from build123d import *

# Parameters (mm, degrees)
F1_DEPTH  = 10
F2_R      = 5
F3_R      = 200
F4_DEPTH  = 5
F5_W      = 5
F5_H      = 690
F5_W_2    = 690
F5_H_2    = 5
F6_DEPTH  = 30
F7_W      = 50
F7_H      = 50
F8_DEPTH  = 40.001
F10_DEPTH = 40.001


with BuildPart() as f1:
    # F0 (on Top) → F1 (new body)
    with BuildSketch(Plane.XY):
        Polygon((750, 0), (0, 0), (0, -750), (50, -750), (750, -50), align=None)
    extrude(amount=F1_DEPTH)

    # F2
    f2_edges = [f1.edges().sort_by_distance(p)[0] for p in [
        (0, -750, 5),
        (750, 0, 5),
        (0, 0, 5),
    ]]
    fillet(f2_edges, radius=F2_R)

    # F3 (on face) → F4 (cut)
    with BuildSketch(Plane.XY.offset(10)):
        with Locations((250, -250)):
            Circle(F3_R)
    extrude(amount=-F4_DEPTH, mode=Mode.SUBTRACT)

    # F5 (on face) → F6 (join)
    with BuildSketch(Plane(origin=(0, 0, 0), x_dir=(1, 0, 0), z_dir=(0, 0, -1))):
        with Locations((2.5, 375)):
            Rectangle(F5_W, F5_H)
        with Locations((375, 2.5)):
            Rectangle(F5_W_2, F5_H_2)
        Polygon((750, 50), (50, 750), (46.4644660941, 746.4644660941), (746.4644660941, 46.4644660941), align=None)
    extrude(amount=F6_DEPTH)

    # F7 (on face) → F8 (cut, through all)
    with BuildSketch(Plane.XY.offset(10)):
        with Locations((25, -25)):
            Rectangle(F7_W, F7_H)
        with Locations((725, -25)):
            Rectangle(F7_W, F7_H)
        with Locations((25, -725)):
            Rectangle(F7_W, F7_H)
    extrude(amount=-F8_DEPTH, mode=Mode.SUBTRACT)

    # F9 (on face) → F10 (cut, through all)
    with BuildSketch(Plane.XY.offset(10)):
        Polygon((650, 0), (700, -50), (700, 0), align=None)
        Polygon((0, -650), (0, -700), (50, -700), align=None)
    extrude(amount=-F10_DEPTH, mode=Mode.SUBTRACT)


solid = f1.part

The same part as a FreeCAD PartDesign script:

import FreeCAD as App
import Part
import Sketcher
from FreeCAD import Vector
Q = App.Units.Quantity


def edges_at(feature, points):
    """Names of the edges that pass closest to the given points."""
    edges = feature.Shape.Edges
    near = lambda p: min(range(len(edges)), key=lambda i: edges[i].distToShape(Part.Vertex(*p))[0])
    return sorted({f"Edge{near(p) + 1}" for p in points})

doc = App.newDocument("Part")
params = doc.addObject("Spreadsheet::Sheet", "Params")
for row, (alias, value) in enumerate([
    ("sketch1_width", "750 mm"),
    ("sketch1_width2", "50 mm"),
    ("pad1_length", "10 mm"),
    ("fillet_radius", "5 mm"),
    ("sketch2_diameter", "400 mm"),
    ("pocket1_length", "5 mm"),
    ("sketch3_width", "5 mm"),
    ("sketch3_width2", "690 mm"),
    ("sketch3_length", "5 mm"),
    ("pad2_length", "30 mm"),
    ("sketch4_width", "50 mm"),
    ("sketch5_width", "50 mm"),
], start=1):
    params.set(f"A{row}", alias)
    params.set(f"B{row}", "=" + value)
    params.setAlias(f"B{row}", alias)

body = doc.addObject("PartDesign::Body", "Body")

sketch1 = doc.addObject("Sketcher::SketchObject", "Sketch")
body.addObject(sketch1)
sketch1.AttachmentSupport = (doc.XY_Plane, [""])
sketch1.MapMode = "FlatFace"
sketch1.addGeometry([
    Part.LineSegment(Vector(750, 0, 0), Vector(0, 0, 0)),
    Part.LineSegment(Vector(0, 0, 0), Vector(0, -750, 0)),
    Part.LineSegment(Vector(0, -750, 0), Vector(50, -750, 0)),
    Part.LineSegment(Vector(50, -750, 0), Vector(750, -50, 0)),
    Part.LineSegment(Vector(750, -50, 0), Vector(750, 0, 0)),
], False)
sketch1.addConstraint([
    Sketcher.Constraint("Coincident", 0, 2, 1, 1),
    Sketcher.Constraint("Coincident", 1, 2, 2, 1),
    Sketcher.Constraint("Coincident", 2, 2, 3, 1),
    Sketcher.Constraint("Coincident", 3, 2, 4, 1),
    Sketcher.Constraint("Coincident", 4, 2, 0, 1),
    Sketcher.Constraint("Horizontal", 0),
    Sketcher.Constraint("Vertical", 1),
    Sketcher.Constraint("Horizontal", 2),
    Sketcher.Constraint("Vertical", 4),
    Sketcher.Constraint("Coincident", 0, 2, -1, 1),
    Sketcher.Constraint("Equal", 0, 1),
    Sketcher.Constraint("Equal", 2, 4),
    Sketcher.Constraint("DistanceX", 0, 2, 0, 1, 750.0),
    Sketcher.Constraint("DistanceX", 2, 1, 2, 2, 50.0),
])
sketch1.setExpression("Constraints[12]", "Params.sketch1_width")
sketch1.setExpression("Constraints[13]", "Params.sketch1_width2")
pad1 = doc.addObject("PartDesign::Pad", "Pad")
body.addObject(pad1)
pad1.Profile = sketch1
pad1.setExpression("Length", "Params.pad1_length")
doc.recompute()

fillet = doc.addObject("PartDesign::Fillet", "Fillet")
body.addObject(fillet)
fillet.Base = (pad1, edges_at(pad1, [(0, -750, 5), (750, 0, 5), (0, 0, 5)]))
fillet.setExpression("Radius", "Params.fillet_radius")

sketch2 = doc.addObject("Sketcher::SketchObject", "Sketch001")
body.addObject(sketch2)
sketch2.AttachmentSupport = (doc.XY_Plane, [""])
sketch2.MapMode = "FlatFace"
sketch2.AttachmentOffset = App.Placement(Vector(0, 0, 10), App.Rotation())
sketch2.addGeometry(Part.Circle(Vector(250, -250, 0), Vector(0, 0, 1), 200), False)
sketch2.addConstraint([
    Sketcher.Constraint("Diameter", 0, 400.0),
    Sketcher.Constraint("DistanceX", -1, 1, 0, 3, 250.0),
    Sketcher.Constraint("DistanceY", 0, 3, -1, 1, 250.0),
])
sketch2.setExpression("Constraints[0]", "Params.sketch2_diameter")
pocket1 = doc.addObject("PartDesign::Pocket", "Pocket")
body.addObject(pocket1)
pocket1.Profile = sketch2
pocket1.setExpression("Length", "Params.pocket1_length")

sketch3 = doc.addObject("Sketcher::SketchObject", "Sketch002")
body.addObject(sketch3)
sketch3.AttachmentSupport = (doc.XY_Plane, [""])
sketch3.MapMode = "FlatFace"
sketch3.addGeometry([
    Part.LineSegment(Vector(0, -720, 0), Vector(0, -30, 0)),
    Part.LineSegment(Vector(0, -30, 0), Vector(5, -30, 0)),
    Part.LineSegment(Vector(5, -30, 0), Vector(5, -720, 0)),
    Part.LineSegment(Vector(5, -720, 0), Vector(0, -720, 0)),
    Part.LineSegment(Vector(30, -5, 0), Vector(30, 0, 0)),
    Part.LineSegment(Vector(30, 0, 0), Vector(720, 0, 0)),
    Part.LineSegment(Vector(720, 0, 0), Vector(720, -5, 0)),
    Part.LineSegment(Vector(720, -5, 0), Vector(30, -5, 0)),
    Part.LineSegment(Vector(750, -50, 0), Vector(50, -750, 0)),
    Part.LineSegment(Vector(50, -750, 0), Vector(46, -746, 0)),
    Part.LineSegment(Vector(46, -746, 0), Vector(746, -46, 0)),
    Part.LineSegment(Vector(746, -46, 0), Vector(750, -50, 0)),
], False)
sketch3.addConstraint([
    Sketcher.Constraint("Coincident", 0, 2, 1, 1),
    Sketcher.Constraint("Coincident", 1, 2, 2, 1),
    Sketcher.Constraint("Coincident", 2, 2, 3, 1),
    Sketcher.Constraint("Coincident", 3, 2, 0, 1),
    Sketcher.Constraint("Coincident", 4, 2, 5, 1),
    Sketcher.Constraint("Coincident", 5, 2, 6, 1),
    Sketcher.Constraint("Coincident", 6, 2, 7, 1),
    Sketcher.Constraint("Coincident", 7, 2, 4, 1),
    Sketcher.Constraint("Coincident", 8, 2, 9, 1),
    Sketcher.Constraint("Coincident", 9, 2, 10, 1),
    Sketcher.Constraint("Coincident", 10, 2, 11, 1),
    Sketcher.Constraint("Coincident", 11, 2, 8, 1),
    Sketcher.Constraint("Vertical", 0),
    Sketcher.Constraint("Horizontal", 1),
    Sketcher.Constraint("Vertical", 2),
    Sketcher.Constraint("Horizontal", 3),
    Sketcher.Constraint("Vertical", 4),
    Sketcher.Constraint("Horizontal", 5),
    Sketcher.Constraint("Vertical", 6),
    Sketcher.Constraint("Horizontal", 7),
    Sketcher.Constraint("PointOnObject", 0, 2, -2),
    Sketcher.Constraint("PointOnObject", 4, 2, -1),
    Sketcher.Constraint("Perpendicular", 8, 9),
    Sketcher.Constraint("Perpendicular", 9, 10),
    Sketcher.Constraint("Perpendicular", 10, 11),
    Sketcher.Constraint("Equal", 7, 0),
    Sketcher.Constraint("Equal", 3, 4),
    Sketcher.Constraint("DistanceX", 1, 1, 1, 2, 5.0),
    Sketcher.Constraint("DistanceX", 5, 1, 5, 2, 690.0),
    Sketcher.Constraint("Angle", 8, Q("-135 deg")),
    Sketcher.Constraint("Distance", 9, 5.0),
    Sketcher.Constraint("DistanceY", 0, 2, -1, 1, 30.0),
    Sketcher.Constraint("DistanceX", -1, 1, 4, 2, 30.0),
    Sketcher.Constraint("DistanceX", -1, 1, 8, 2, 50.0),
    Sketcher.Constraint("DistanceY", 8, 2, -1, 1, 750.0),
    Sketcher.Constraint("DistanceX", -1, 1, 11, 2, 750.0),
])
sketch3.setExpression("Constraints[27]", "Params.sketch3_width")
sketch3.setExpression("Constraints[28]", "Params.sketch3_width2")
sketch3.setExpression("Constraints[30]", "Params.sketch3_length")
pad2 = doc.addObject("PartDesign::Pad", "Pad001")
body.addObject(pad2)
pad2.Profile = sketch3
pad2.setExpression("Length", "Params.pad2_length")
pad2.Reversed = True

sketch4 = doc.addObject("Sketcher::SketchObject", "Sketch003")
body.addObject(sketch4)
sketch4.AttachmentSupport = (doc.XY_Plane, [""])
sketch4.MapMode = "FlatFace"
sketch4.AttachmentOffset = App.Placement(Vector(0, 0, 10), App.Rotation())
sketch4.addGeometry([
    Part.LineSegment(Vector(0, 0, 0), Vector(0, -50, 0)),
    Part.LineSegment(Vector(0, -50, 0), Vector(50, -50, 0)),
    Part.LineSegment(Vector(50, -50, 0), Vector(50, 0, 0)),
    Part.LineSegment(Vector(50, 0, 0), Vector(0, 0, 0)),
    Part.LineSegment(Vector(700, 0, 0), Vector(700, -50, 0)),
    Part.LineSegment(Vector(700, -50, 0), Vector(750, -50, 0)),
    Part.LineSegment(Vector(750, -50, 0), Vector(750, 0, 0)),
    Part.LineSegment(Vector(750, 0, 0), Vector(700, 0, 0)),
    Part.LineSegment(Vector(0, -700, 0), Vector(0, -750, 0)),
    Part.LineSegment(Vector(0, -750, 0), Vector(50, -750, 0)),
    Part.LineSegment(Vector(50, -750, 0), Vector(50, -700, 0)),
    Part.LineSegment(Vector(50, -700, 0), Vector(0, -700, 0)),
], False)
sketch4.addConstraint([
    Sketcher.Constraint("Coincident", 0, 2, 1, 1),
    Sketcher.Constraint("Coincident", 1, 2, 2, 1),
    Sketcher.Constraint("Coincident", 2, 2, 3, 1),
    Sketcher.Constraint("Coincident", 3, 2, 0, 1),
    Sketcher.Constraint("Coincident", 4, 2, 5, 1),
    Sketcher.Constraint("Coincident", 5, 2, 6, 1),
    Sketcher.Constraint("Coincident", 6, 2, 7, 1),
    Sketcher.Constraint("Coincident", 7, 2, 4, 1),
    Sketcher.Constraint("Coincident", 8, 2, 9, 1),
    Sketcher.Constraint("Coincident", 9, 2, 10, 1),
    Sketcher.Constraint("Coincident", 10, 2, 11, 1),
    Sketcher.Constraint("Coincident", 11, 2, 8, 1),
    Sketcher.Constraint("Vertical", 0),
    Sketcher.Constraint("Horizontal", 1),
    Sketcher.Constraint("Vertical", 2),
    Sketcher.Constraint("Horizontal", 3),
    Sketcher.Constraint("Vertical", 4),
    Sketcher.Constraint("Horizontal", 5),
    Sketcher.Constraint("Vertical", 6),
    Sketcher.Constraint("Horizontal", 7),
    Sketcher.Constraint("Vertical", 8),
    Sketcher.Constraint("Horizontal", 9),
    Sketcher.Constraint("Vertical", 10),
    Sketcher.Constraint("Horizontal", 11),
    Sketcher.Constraint("Coincident", 3, 2, -1, 1),
    Sketcher.Constraint("PointOnObject", 6, 2, -1),
    Sketcher.Constraint("PointOnObject", 8, 2, -2),
    Sketcher.Constraint("Horizontal", 1, 2, 4, 2),
    Sketcher.Constraint("Vertical", 2, 2, 9, 2),
    Sketcher.Constraint("Equal", 3, 5),
    Sketcher.Constraint("Equal", 11, 0),
    Sketcher.Constraint("Equal", 6, 8),
    Sketcher.Constraint("DistanceX", 1, 1, 1, 2, 50.0),
    Sketcher.Constraint("DistanceX", -1, 1, 4, 2, 700.0),
    Sketcher.Constraint("DistanceY", 8, 2, -1, 1, 750.0),
])
sketch4.setExpression("Constraints[32]", "Params.sketch4_width")
pocket2 = doc.addObject("PartDesign::Pocket", "Pocket001")
body.addObject(pocket2)
pocket2.Profile = sketch4
pocket2.Type = "ThroughAll"

sketch5 = doc.addObject("Sketcher::SketchObject", "Sketch004")
body.addObject(sketch5)
sketch5.AttachmentSupport = (doc.XY_Plane, [""])
sketch5.MapMode = "FlatFace"
sketch5.AttachmentOffset = App.Placement(Vector(0, 0, 10), App.Rotation())
sketch5.addGeometry([
    Part.LineSegment(Vector(650, 0, 0), Vector(700, -50, 0)),
    Part.LineSegment(Vector(700, -50, 0), Vector(700, 0, 0)),
    Part.LineSegment(Vector(700, 0, 0), Vector(650, 0, 0)),
    Part.LineSegment(Vector(0, -650, 0), Vector(0, -700, 0)),
    Part.LineSegment(Vector(0, -700, 0), Vector(50, -700, 0)),
    Part.LineSegment(Vector(50, -700, 0), Vector(0, -650, 0)),
], False)
sketch5.addConstraint([
    Sketcher.Constraint("Coincident", 0, 2, 1, 1),
    Sketcher.Constraint("Coincident", 1, 2, 2, 1),
    Sketcher.Constraint("Coincident", 2, 2, 0, 1),
    Sketcher.Constraint("Coincident", 3, 2, 4, 1),
    Sketcher.Constraint("Coincident", 4, 2, 5, 1),
    Sketcher.Constraint("Coincident", 5, 2, 3, 1),
    Sketcher.Constraint("Vertical", 1),
    Sketcher.Constraint("Horizontal", 2),
    Sketcher.Constraint("Vertical", 3),
    Sketcher.Constraint("Horizontal", 4),
    Sketcher.Constraint("PointOnObject", 1, 2, -1),
    Sketcher.Constraint("PointOnObject", 3, 2, -2),
    Sketcher.Constraint("Parallel", 0, 5),
    Sketcher.Constraint("Equal", 2, 4),
    Sketcher.Constraint("Equal", 4, 1),
    Sketcher.Constraint("DistanceX", 2, 2, 2, 1, 50.0),
    Sketcher.Constraint("DistanceX", -1, 1, 0, 2, 700.0),
    Sketcher.Constraint("DistanceY", 3, 2, -1, 1, 700.0),
])
sketch5.setExpression("Constraints[15]", "Params.sketch5_width")
pocket3 = doc.addObject("PartDesign::Pocket", "Pocket002")
body.addObject(pocket3)
pocket3.Profile = sketch5
pocket3.Type = "ThroughAll"

doc.recompute()
